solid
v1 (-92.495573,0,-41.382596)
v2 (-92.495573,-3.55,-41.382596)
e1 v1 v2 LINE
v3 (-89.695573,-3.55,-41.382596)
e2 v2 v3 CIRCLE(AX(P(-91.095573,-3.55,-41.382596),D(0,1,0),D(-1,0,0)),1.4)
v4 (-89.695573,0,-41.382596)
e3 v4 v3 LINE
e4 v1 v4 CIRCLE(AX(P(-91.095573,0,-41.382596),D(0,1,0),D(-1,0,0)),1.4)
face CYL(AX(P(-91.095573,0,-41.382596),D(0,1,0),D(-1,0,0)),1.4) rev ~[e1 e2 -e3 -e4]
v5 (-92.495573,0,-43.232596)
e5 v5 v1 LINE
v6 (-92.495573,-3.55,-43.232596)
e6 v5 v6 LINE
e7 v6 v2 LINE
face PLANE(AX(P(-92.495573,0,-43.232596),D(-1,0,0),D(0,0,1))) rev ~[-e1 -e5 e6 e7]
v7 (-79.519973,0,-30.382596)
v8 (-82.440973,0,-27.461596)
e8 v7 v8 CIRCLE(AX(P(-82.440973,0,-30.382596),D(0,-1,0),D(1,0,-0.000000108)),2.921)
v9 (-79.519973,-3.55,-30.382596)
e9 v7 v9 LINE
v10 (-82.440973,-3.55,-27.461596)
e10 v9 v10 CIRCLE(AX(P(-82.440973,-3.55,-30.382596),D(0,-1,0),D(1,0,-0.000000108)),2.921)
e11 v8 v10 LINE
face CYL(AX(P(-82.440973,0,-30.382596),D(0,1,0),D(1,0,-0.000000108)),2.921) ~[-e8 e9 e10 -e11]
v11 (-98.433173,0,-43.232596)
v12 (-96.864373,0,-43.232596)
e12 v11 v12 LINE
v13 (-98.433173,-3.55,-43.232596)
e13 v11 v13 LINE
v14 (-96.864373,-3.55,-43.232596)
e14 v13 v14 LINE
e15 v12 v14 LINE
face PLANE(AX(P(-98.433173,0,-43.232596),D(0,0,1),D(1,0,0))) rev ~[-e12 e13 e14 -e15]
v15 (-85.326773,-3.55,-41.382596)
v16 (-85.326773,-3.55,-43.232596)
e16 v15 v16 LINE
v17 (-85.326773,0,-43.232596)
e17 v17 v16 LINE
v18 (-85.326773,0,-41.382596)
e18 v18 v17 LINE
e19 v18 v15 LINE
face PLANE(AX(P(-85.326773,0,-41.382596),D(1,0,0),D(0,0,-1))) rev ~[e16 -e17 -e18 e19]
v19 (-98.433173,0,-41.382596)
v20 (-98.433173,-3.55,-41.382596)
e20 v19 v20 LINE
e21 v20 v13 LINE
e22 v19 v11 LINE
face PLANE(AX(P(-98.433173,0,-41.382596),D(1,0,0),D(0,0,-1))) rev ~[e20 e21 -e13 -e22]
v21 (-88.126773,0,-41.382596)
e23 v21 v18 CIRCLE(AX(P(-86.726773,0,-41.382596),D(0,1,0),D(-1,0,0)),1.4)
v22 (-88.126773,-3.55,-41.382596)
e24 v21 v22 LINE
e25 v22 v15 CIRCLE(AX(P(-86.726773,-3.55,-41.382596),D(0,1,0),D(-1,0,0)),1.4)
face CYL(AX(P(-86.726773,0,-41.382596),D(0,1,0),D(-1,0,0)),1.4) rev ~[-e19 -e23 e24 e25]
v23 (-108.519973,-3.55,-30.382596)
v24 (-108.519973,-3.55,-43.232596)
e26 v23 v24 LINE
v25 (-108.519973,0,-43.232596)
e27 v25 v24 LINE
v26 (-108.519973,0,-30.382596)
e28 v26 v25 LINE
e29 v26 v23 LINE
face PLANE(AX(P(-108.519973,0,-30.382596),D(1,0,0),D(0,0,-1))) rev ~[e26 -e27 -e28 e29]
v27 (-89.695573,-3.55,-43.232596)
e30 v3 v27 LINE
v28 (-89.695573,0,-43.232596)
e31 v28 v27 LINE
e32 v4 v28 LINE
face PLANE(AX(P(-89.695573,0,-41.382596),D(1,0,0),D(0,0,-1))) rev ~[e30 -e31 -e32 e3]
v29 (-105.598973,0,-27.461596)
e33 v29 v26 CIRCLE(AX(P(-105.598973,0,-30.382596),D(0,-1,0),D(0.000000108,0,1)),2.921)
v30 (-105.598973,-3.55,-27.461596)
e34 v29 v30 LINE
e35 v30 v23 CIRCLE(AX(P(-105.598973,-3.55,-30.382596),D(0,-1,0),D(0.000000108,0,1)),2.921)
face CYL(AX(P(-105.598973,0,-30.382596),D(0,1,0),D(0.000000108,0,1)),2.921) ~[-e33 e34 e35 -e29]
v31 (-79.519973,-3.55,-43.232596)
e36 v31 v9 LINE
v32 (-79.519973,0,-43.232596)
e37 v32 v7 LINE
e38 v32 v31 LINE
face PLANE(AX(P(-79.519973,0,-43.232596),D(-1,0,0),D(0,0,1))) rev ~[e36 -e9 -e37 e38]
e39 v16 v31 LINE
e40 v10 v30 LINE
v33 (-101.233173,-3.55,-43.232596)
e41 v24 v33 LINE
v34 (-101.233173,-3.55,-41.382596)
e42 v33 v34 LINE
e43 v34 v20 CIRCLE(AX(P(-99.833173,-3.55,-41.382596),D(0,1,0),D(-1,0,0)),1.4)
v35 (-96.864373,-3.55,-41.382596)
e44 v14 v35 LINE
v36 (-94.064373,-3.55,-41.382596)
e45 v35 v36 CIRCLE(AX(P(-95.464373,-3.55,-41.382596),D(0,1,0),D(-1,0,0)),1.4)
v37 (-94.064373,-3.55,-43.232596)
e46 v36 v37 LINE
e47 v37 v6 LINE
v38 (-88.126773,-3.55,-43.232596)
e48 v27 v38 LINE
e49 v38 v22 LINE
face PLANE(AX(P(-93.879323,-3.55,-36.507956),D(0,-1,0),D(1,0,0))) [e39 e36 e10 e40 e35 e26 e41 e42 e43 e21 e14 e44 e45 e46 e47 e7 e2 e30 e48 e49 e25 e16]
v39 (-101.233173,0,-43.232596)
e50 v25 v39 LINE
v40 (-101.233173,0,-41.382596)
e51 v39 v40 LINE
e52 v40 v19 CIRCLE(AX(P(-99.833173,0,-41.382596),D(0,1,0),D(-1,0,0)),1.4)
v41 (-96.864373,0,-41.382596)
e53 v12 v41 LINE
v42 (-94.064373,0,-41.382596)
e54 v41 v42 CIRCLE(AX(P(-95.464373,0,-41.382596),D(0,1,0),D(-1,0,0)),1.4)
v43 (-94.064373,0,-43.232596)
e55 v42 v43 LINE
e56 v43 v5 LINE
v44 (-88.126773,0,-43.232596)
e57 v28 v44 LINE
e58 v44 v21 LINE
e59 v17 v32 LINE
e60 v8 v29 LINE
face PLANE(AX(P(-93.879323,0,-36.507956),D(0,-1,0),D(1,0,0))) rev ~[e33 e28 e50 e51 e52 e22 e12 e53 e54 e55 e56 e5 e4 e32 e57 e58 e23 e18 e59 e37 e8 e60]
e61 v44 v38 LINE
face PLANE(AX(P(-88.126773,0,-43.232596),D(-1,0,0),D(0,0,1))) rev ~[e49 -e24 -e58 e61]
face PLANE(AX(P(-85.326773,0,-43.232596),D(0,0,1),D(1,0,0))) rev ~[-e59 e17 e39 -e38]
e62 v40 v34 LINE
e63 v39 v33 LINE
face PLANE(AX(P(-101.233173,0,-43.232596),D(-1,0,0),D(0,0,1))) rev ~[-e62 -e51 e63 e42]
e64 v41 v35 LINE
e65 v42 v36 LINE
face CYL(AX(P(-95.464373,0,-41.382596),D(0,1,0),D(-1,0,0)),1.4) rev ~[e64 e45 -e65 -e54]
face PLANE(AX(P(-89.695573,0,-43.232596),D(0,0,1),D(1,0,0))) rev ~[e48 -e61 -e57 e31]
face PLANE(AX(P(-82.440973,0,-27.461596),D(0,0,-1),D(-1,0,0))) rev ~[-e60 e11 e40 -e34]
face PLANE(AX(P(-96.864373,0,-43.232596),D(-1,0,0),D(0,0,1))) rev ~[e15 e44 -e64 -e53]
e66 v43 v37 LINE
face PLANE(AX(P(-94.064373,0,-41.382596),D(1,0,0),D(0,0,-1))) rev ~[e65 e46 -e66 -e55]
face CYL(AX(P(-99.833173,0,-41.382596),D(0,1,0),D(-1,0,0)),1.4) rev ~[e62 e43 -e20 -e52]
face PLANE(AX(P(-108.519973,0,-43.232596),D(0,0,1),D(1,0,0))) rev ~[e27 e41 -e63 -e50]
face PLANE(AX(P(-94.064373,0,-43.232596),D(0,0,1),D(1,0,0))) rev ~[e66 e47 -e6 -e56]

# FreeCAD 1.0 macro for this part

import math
import FreeCAD as App
import Part
import Sketcher
from FreeCAD import Vector

doc = App.newDocument("Part")
body = doc.addObject("PartDesign::Body", "Body")

# Sketch on XZ plane
sketch1 = body.newObject("Sketcher::SketchObject", "Sketch")
sketch1.AttachmentSupport = (doc.getObject("XZ_Plane"), [""])
sketch1.MapMode = "FlatFace"
sketch1.addGeometry(Part.LineSegment(Vector(-82.440973, -27.461596, 0), Vector(-105.598973, -27.461596, 0)), False)
sketch1.addGeometry(Part.ArcOfCircle(Part.Circle(Vector(-105.598973, -30.382596, 0), Vector(0, 0, 1), 2.921), math.radians(89.999994), math.radians(180.000006)), False)
sketch1.addGeometry(Part.LineSegment(Vector(-108.519973, -30.382596, 0), Vector(-108.519973, -43.232596, 0)), False)
sketch1.addGeometry(Part.LineSegment(Vector(-108.519973, -43.232596, 0), Vector(-101.233173, -43.232596, 0)), False)
sketch1.addGeometry(Part.LineSegment(Vector(-101.233173, -43.232596, 0), Vector(-101.233173, -41.382596, 0)), False)
sketch1.addGeometry(Part.ArcOfCircle(Part.Circle(Vector(-99.833173, -41.382596, 0), Vector(0, 0, 1), 1.4), math.radians(0), math.radians(180)), False)
sketch1.addGeometry(Part.LineSegment(Vector(-98.433173, -41.382596, 0), Vector(-98.433173, -43.232596, 0)), False)
sketch1.addGeometry(Part.LineSegment(Vector(-98.433173, -43.232596, 0), Vector(-96.864373, -43.232596, 0)), False)
sketch1.addGeometry(Part.LineSegment(Vector(-96.864373, -43.232596, 0), Vector(-96.864373, -41.382596, 0)), False)
sketch1.addGeometry(Part.ArcOfCircle(Part.Circle(Vector(-95.464373, -41.382596, 0), Vector(0, 0, 1), 1.4), math.radians(0), math.radians(180)), False)
sketch1.addGeometry(Part.LineSegment(Vector(-94.064373, -41.382596, 0), Vector(-94.064373, -43.232596, 0)), False)
sketch1.addGeometry(Part.LineSegment(Vector(-94.064373, -43.232596, 0), Vector(-92.495573, -43.232596, 0)), False)
sketch1.addGeometry(Part.LineSegment(Vector(-92.495573, -43.232596, 0), Vector(-92.495573, -41.382596, 0)), False)
sketch1.addGeometry(Part.ArcOfCircle(Part.Circle(Vector(-91.095573, -41.382596, 0), Vector(0, 0, 1), 1.4), math.radians(0), math.radians(180)), False)
sketch1.addGeometry(Part.LineSegment(Vector(-89.695573, -41.382596, 0), Vector(-89.695573, -43.232596, 0)), False)
sketch1.addGeometry(Part.LineSegment(Vector(-89.695573, -43.232596, 0), Vector(-88.126773, -43.232596, 0)), False)
sketch1.addGeometry(Part.LineSegment(Vector(-88.126773, -43.232596, 0), Vector(-88.126773, -41.382596, 0)), False)
sketch1.addGeometry(Part.ArcOfCircle(Part.Circle(Vector(-86.726773, -41.382596, 0), Vector(0, 0, 1), 1.4), math.radians(0), math.radians(180)), False)
sketch1.addGeometry(Part.LineSegment(Vector(-85.326773, -41.382596, 0), Vector(-85.326773, -43.232596, 0)), False)
sketch1.addGeometry(Part.LineSegment(Vector(-85.326773, -43.232596, 0), Vector(-79.519973, -43.232596, 0)), False)
sketch1.addGeometry(Part.LineSegment(Vector(-79.519973, -43.232596, 0), Vector(-79.519973, -30.382596, 0)), False)
sketch1.addGeometry(Part.ArcOfCircle(Part.Circle(Vector(-82.440973, -30.382596, 0), Vector(0, 0, 1), 2.921), math.radians(-0.000006), math.radians(90.000006)), False)
sketch1.addConstraint(Sketcher.Constraint("Tangent", 0, 2, 1, 1))
sketch1.addConstraint(Sketcher.Constraint("Tangent", 1, 2, 2, 1))
sketch1.addConstraint(Sketcher.Constraint("Coincident", 2, 2, 3, 1))
sketch1.addConstraint(Sketcher.Constraint("Coincident", 3, 2, 4, 1))
sketch1.addConstraint(Sketcher.Constraint("Tangent", 4, 2, 5, 2))
sketch1.addConstraint(Sketcher.Constraint("Tangent", 5, 1, 6, 1))
sketch1.addConstraint(Sketcher.Constraint("Coincident", 6, 2, 7, 1))
sketch1.addConstraint(Sketcher.Constraint("Coincident", 7, 2, 8, 1))
sketch1.addConstraint(Sketcher.Constraint("Tangent", 8, 2, 9, 2))
sketch1.addConstraint(Sketcher.Constraint("Tangent", 9, 1, 10, 1))
sketch1.addConstraint(Sketcher.Constraint("Coincident", 10, 2, 11, 1))
sketch1.addConstraint(Sketcher.Constraint("Coincident", 11, 2, 12, 1))
sketch1.addConstraint(Sketcher.Constraint("Tangent", 12, 2, 13, 2))
sketch1.addConstraint(Sketcher.Constraint("Tangent", 13, 1, 14, 1))
sketch1.addConstraint(Sketcher.Constraint("Coincident", 14, 2, 15, 1))
sketch1.addConstraint(Sketcher.Constraint("Coincident", 15, 2, 16, 1))
sketch1.addConstraint(Sketcher.Constraint("Tangent", 16, 2, 17, 2))
sketch1.addConstraint(Sketcher.Constraint("Tangent", 17, 1, 18, 1))
sketch1.addConstraint(Sketcher.Constraint("Coincident", 18, 2, 19, 1))
sketch1.addConstraint(Sketcher.Constraint("Coincident", 19, 2, 20, 1))
sketch1.addConstraint(Sketcher.Constraint("Tangent", 20, 2, 21, 1))
sketch1.addConstraint(Sketcher.Constraint("Tangent", 21, 2, 0, 1))
sketch1.addConstraint(Sketcher.Constraint("Horizontal", 0))
sketch1.addConstraint(Sketcher.Constraint("Vertical", 2))
sketch1.addConstraint(Sketcher.Constraint("Horizontal", 3))
sketch1.addConstraint(Sketcher.Constraint("Vertical", 4))
sketch1.addConstraint(Sketcher.Constraint("Vertical", 6))
sketch1.addConstraint(Sketcher.Constraint("Horizontal", 7))
sketch1.addConstraint(Sketcher.Constraint("Vertical", 8))
sketch1.addConstraint(Sketcher.Constraint("Vertical", 10))
sketch1.addConstraint(Sketcher.Constraint("Horizontal", 11))
sketch1.addConstraint(Sketcher.Constraint("Vertical", 12))
sketch1.addConstraint(Sketcher.Constraint("Vertical", 14))
sketch1.addConstraint(Sketcher.Constraint("Horizontal", 15))
sketch1.addConstraint(Sketcher.Constraint("Vertical", 16))
sketch1.addConstraint(Sketcher.Constraint("Vertical", 18))
sketch1.addConstraint(Sketcher.Constraint("Horizontal", 19))
sketch1.addConstraint(Sketcher.Constraint("Vertical", 20))
sketch1.addConstraint(Sketcher.Constraint("Equal", 5, 9))
sketch1.addConstraint(Sketcher.Constraint("Equal", 9, 13))
sketch1.addConstraint(Sketcher.Constraint("Equal", 13, 17))
sketch1.addConstraint(Sketcher.Constraint("Equal", 1, 21))
sketch1.addConstraint(Sketcher.Constraint("Horizontal", 5, 3, 9, 3))
sketch1.addConstraint(Sketcher.Constraint("Horizontal", 9, 3, 13, 3))
sketch1.addConstraint(Sketcher.Constraint("Horizontal", 13, 3, 17, 3))
sketch1.addConstraint(Sketcher.Constraint("Horizontal", 3, 2, 6, 2))
sketch1.addConstraint(Sketcher.Constraint("Horizontal", 7, 2, 10, 2))
sketch1.addConstraint(Sketcher.Constraint("Horizontal", 11, 2, 14, 2))
sketch1.addConstraint(Sketcher.Constraint("Horizontal", 15, 2, 18, 2))
sketch1.addConstraint(Sketcher.Constraint("Equal", 7, 11))
sketch1.addConstraint(Sketcher.Constraint("Equal", 11, 15))
sketch1.addConstraint(Sketcher.Constraint("Radius", 5, 1.4))
sketch1.addConstraint(Sketcher.Constraint("Radius", 1, 2.921))
sketch1.addConstraint(Sketcher.Constraint("DistanceY", 5, 3, 1, 3, 11.0))
sketch1.addConstraint(Sketcher.Constraint("DistanceY", 2, 2, 2, 1, 12.85))
sketch1.addConstraint(Sketcher.Constraint("DistanceX", 0, 2, 0, 1, 23.158))
sketch1.addConstraint(Sketcher.Constraint("DistanceX", 3, 1, 3, 2, 7.2868))
sketch1.addConstraint(Sketcher.Constraint("DistanceX", 7, 1, 7, 2, 1.5688))
sketch1.addConstraint(Sketcher.Constraint("DistanceX", 1, 3, -1, 1, 105.598973))
sketch1.addConstraint(Sketcher.Constraint("DistanceY", 1, 3, -1, 1, 30.382596))
pad1 = body.newObject("PartDesign::Pad", "Pad")
pad1.Profile = sketch1
pad1.Length = 3.55

doc.recompute()
